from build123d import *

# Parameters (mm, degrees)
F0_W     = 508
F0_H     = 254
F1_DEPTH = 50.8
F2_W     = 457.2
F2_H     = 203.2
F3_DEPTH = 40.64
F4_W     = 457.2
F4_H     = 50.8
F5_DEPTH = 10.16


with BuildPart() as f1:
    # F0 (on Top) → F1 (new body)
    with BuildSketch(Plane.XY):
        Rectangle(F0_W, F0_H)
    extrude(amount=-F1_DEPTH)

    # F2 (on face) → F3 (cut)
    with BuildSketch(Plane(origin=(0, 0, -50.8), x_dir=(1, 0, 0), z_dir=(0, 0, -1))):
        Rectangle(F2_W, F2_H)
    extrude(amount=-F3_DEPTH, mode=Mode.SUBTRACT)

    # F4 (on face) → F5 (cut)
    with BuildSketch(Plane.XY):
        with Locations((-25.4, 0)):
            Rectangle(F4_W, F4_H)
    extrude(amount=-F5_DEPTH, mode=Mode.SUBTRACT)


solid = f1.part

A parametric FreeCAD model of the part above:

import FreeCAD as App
import Part
import Sketcher
Q = App.Units.Quantity


def add_polygon(sketch, points):
    """Adds a closed chain of lines whose ends are joined by coincident constraints."""
    first, n = sketch.GeometryCount, len(points)
    for a, b in zip(points, points[1:] + points[:1]):
        sketch.addGeometry(Part.LineSegment(App.Vector(*a, 0), App.Vector(*b, 0)), False)
    for i in range(n):
        sketch.addConstraint(Sketcher.Constraint("Coincident", first + i, 2, first + (i + 1) % n, 1))

doc = App.newDocument("Part")
body = doc.addObject("PartDesign::Body", "Body")

sketch1 = body.newObject("Sketcher::SketchObject", "Sketch")
sketch1.AttachmentSupport = (doc.getObject("XY_Plane"), [""])
sketch1.MapMode = "FlatFace"
add_polygon(sketch1, [(-254, 127), (-254, -127), (254, -127), (254, 127)])
sketch1.addConstraint(Sketcher.Constraint("Vertical", 0))
sketch1.addConstraint(Sketcher.Constraint("Horizontal", 1))
sketch1.addConstraint(Sketcher.Constraint("Vertical", 2))
sketch1.addConstraint(Sketcher.Constraint("Horizontal", 3))
sketch1.addConstraint(Sketcher.Constraint("Symmetric", 0, 2, 2, 2, -1, 1))
sketch1.addConstraint(Sketcher.Constraint("DistanceX", 1, 1, 1, 2, Q("20 in")))
sketch1.addConstraint(Sketcher.Constraint("DistanceY", 0, 2, 0, 1, Q("10 in")))
pad1 = body.newObject("PartDesign::Pad", "Pad")
pad1.Profile = sketch1
pad1.Length = Q("2 in")
pad1.Reversed = True

sketch2 = body.newObject("Sketcher::SketchObject", "Sketch001")
sketch2.AttachmentSupport = (doc.getObject("XY_Plane"), [""])
sketch2.MapMode = "FlatFace"
sketch2.AttachmentOffset = App.Placement(App.Vector(0, 0, -2 * 25.4), App.Rotation())
add_polygon(sketch2, [(-228.6, -101.6), (-228.6, 101.6), (228.6, 101.6), (228.6, -101.6)])
sketch2.addConstraint(Sketcher.Constraint("Vertical", 0))
sketch2.addConstraint(Sketcher.Constraint("Horizontal", 1))
sketch2.addConstraint(Sketcher.Constraint("Vertical", 2))
sketch2.addConstraint(Sketcher.Constraint("Horizontal", 3))
sketch2.addConstraint(Sketcher.Constraint("Symmetric", 0, 2, 2, 2, -1, 1))
sketch2.addConstraint(Sketcher.Constraint("DistanceX", 1, 1, 1, 2, Q("18 in")))
sketch2.addConstraint(Sketcher.Constraint("DistanceY", 0, 1, 0, 2, Q("8 in")))
pocket1 = body.newObject("PartDesign::Pocket", "Pocket")
pocket1.Profile = sketch2
pocket1.Length = Q("1.6 in")
pocket1.Reversed = True

sketch3 = body.newObject("Sketcher::SketchObject", "Sketch002")
sketch3.AttachmentSupport = (doc.getObject("XY_Plane"), [""])
sketch3.MapMode = "FlatFace"
add_polygon(sketch3, [(-254, 25.4), (-254, -25.4), (203.2, -25.4), (203.2, 25.4)])
sketch3.addConstraint(Sketcher.Constraint("Vertical", 0))
sketch3.addConstraint(Sketcher.Constraint("Horizontal", 1))
sketch3.addConstraint(Sketcher.Constraint("Vertical", 2))
sketch3.addConstraint(Sketcher.Constraint("Horizontal", 3))
sketch3.addConstraint(Sketcher.Constraint("DistanceX", 1, 1, 1, 2, Q("18 in")))
sketch3.addConstraint(Sketcher.Constraint("DistanceY", 0, 2, 0, 1, Q("2 in")))
sketch3.addConstraint(Sketcher.Constraint("DistanceX", 0, 2, -1, 1, Q("10 in")))
sketch3.addConstraint(Sketcher.Constraint("DistanceY", 0, 2, -1, 1, Q("1 in")))
pocket2 = body.newObject("PartDesign::Pocket", "Pocket001")
pocket2.Profile = sketch3
pocket2.Length = Q("0.4 in")

doc.recompute()
